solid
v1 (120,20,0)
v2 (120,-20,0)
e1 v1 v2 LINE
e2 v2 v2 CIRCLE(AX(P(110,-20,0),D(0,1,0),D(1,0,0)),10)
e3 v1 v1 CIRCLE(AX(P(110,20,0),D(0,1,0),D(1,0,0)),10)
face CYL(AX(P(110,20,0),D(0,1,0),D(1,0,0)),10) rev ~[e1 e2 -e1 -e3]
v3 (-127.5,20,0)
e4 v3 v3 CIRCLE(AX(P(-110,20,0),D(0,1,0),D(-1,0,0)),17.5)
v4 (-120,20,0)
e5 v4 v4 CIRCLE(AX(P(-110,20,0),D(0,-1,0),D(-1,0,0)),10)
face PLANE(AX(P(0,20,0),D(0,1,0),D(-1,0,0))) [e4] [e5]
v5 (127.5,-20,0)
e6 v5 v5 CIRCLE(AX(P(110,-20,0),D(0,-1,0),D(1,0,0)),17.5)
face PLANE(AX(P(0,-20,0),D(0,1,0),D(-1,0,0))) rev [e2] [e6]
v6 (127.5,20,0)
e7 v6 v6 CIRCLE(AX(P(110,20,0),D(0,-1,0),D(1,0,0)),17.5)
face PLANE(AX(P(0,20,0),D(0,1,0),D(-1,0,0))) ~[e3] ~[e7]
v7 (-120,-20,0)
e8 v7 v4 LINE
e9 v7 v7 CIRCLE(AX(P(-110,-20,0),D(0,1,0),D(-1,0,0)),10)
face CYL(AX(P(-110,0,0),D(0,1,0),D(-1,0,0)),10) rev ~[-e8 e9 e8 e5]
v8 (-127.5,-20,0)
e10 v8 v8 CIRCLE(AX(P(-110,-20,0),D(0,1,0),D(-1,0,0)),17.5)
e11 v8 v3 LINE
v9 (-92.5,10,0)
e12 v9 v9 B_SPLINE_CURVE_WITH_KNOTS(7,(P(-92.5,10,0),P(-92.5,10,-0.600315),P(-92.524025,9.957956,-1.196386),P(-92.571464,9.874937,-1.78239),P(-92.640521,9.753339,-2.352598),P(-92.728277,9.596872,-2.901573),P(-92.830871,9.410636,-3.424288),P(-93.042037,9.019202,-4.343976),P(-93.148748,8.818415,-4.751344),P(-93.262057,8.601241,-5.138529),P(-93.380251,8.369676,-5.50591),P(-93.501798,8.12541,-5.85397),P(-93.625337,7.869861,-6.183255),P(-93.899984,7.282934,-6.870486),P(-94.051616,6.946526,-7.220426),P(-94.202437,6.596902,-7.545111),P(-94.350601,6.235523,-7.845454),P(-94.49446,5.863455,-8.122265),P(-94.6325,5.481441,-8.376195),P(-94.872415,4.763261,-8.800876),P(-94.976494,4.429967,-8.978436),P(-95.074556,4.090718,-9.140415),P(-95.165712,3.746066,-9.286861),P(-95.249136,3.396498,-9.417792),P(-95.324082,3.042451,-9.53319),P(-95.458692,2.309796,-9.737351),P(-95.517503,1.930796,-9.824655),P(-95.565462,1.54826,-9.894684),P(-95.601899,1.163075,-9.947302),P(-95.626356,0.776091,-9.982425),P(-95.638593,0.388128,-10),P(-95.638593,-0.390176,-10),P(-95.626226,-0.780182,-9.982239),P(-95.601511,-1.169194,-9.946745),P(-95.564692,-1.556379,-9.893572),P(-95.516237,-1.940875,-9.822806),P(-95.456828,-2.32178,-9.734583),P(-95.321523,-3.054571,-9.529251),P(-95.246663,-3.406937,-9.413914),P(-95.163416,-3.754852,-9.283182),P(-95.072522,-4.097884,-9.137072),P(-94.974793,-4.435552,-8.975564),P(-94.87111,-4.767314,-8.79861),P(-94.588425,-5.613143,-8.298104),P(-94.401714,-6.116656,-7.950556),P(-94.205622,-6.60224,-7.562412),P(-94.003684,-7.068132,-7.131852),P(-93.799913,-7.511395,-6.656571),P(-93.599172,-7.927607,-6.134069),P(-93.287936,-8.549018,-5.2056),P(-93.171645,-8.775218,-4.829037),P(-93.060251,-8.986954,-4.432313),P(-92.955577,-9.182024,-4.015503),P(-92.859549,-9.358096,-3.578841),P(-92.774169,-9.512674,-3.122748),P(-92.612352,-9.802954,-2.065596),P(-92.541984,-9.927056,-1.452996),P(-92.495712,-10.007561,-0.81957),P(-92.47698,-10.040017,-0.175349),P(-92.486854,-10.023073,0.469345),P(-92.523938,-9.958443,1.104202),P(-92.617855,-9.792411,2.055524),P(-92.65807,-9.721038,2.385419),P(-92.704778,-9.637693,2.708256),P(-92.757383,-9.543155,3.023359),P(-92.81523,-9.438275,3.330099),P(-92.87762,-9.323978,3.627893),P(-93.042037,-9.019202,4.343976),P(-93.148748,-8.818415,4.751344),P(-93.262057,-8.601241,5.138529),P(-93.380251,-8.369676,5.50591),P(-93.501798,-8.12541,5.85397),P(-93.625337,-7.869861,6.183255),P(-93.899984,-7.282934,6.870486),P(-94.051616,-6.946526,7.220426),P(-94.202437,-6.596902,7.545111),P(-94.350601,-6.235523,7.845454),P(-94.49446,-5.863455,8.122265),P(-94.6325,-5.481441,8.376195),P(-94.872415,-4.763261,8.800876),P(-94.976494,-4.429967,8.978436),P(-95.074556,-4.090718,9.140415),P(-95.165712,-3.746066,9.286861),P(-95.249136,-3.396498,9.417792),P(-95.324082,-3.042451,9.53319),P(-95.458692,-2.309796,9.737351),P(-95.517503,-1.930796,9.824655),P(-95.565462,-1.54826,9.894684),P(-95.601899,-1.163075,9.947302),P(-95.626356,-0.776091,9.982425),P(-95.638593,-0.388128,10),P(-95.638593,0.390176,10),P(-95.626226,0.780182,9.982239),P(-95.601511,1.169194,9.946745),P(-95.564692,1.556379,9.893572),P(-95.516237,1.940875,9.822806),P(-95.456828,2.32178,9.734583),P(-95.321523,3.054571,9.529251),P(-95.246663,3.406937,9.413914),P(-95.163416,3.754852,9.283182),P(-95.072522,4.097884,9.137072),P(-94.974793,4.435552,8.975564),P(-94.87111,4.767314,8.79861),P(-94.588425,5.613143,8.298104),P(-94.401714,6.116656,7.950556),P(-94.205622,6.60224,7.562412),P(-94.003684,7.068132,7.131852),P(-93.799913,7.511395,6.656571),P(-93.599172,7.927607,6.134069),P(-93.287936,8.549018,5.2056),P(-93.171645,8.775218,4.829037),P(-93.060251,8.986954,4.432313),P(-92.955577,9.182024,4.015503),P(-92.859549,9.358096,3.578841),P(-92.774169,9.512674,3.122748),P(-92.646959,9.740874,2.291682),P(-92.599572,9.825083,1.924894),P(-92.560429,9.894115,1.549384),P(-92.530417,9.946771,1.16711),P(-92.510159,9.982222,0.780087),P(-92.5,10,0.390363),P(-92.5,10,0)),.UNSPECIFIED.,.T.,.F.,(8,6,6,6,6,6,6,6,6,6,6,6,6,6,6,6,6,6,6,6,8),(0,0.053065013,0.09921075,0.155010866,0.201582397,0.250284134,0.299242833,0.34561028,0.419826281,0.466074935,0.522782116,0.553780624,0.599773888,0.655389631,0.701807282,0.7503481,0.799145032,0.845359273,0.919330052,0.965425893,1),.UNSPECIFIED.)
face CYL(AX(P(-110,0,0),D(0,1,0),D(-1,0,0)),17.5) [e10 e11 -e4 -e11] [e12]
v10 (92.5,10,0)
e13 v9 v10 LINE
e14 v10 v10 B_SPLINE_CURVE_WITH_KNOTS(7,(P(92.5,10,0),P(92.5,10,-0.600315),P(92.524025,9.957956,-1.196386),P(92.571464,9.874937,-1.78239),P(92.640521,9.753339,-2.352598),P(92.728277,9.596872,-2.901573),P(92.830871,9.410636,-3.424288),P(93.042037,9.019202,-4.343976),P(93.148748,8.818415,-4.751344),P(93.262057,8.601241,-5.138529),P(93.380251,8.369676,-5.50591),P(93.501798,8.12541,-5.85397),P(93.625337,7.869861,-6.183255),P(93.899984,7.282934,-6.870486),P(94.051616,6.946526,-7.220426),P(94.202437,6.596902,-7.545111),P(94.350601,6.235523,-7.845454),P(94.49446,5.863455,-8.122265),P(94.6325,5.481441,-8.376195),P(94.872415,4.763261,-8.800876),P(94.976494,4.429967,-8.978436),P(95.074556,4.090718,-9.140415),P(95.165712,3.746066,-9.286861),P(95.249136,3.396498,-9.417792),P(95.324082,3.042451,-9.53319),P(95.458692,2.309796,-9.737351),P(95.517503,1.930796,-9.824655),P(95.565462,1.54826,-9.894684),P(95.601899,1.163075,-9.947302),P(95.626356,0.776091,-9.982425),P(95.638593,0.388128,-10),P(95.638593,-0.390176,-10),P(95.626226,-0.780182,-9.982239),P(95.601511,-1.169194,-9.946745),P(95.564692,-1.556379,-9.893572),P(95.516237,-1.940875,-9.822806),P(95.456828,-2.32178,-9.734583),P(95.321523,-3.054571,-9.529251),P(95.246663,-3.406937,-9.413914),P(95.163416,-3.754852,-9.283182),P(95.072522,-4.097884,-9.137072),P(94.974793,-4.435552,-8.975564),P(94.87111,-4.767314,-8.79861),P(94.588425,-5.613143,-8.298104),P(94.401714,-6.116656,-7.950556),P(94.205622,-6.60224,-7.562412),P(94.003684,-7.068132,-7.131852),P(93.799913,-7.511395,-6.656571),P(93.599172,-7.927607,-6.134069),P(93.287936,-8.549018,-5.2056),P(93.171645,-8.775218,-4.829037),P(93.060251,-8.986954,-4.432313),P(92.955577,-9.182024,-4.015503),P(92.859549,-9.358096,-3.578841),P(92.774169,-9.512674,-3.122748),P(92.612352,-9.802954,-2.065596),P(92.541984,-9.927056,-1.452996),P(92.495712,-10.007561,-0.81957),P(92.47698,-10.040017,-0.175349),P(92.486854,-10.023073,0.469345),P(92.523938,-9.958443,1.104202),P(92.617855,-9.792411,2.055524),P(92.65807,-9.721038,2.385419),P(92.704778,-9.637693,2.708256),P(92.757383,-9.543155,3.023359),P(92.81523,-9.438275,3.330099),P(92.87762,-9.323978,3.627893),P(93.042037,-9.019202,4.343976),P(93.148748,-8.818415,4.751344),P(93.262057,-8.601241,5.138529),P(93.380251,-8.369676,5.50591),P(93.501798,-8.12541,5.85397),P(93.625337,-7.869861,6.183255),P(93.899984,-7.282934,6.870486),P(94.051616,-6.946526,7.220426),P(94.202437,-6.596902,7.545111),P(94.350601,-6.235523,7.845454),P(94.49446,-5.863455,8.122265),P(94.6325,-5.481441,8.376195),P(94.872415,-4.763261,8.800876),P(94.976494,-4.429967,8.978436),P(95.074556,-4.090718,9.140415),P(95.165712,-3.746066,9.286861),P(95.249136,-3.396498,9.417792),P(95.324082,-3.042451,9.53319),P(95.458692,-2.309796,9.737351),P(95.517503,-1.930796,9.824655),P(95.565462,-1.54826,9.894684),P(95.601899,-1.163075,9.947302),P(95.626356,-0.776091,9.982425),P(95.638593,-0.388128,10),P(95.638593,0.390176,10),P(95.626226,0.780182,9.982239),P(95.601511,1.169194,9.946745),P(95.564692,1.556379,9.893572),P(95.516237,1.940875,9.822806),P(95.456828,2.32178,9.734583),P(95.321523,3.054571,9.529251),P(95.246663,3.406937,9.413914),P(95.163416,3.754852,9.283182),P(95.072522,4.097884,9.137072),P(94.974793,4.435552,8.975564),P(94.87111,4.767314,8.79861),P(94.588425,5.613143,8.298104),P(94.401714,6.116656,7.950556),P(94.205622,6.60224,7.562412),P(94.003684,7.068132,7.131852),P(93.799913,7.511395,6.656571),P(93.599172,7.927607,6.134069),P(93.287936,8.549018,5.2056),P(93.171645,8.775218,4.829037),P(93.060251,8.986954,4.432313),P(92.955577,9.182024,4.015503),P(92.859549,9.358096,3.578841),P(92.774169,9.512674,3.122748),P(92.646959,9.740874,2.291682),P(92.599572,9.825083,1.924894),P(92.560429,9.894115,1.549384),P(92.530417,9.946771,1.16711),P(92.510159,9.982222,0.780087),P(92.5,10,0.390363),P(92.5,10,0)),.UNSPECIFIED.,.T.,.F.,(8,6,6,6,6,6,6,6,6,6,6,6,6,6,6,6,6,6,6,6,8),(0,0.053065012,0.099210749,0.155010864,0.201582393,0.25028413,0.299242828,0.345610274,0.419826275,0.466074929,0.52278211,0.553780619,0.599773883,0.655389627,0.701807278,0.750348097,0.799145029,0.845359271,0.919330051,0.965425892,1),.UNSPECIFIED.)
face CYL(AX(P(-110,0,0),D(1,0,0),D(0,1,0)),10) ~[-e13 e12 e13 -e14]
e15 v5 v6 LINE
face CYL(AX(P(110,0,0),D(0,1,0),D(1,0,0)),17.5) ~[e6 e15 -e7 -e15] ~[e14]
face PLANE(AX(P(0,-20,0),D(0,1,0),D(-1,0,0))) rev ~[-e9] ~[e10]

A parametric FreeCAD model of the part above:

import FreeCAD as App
import Part
import Sketcher

doc = App.newDocument("Part")
body = doc.addObject("PartDesign::Body", "Body")

sketch1 = body.newObject("Sketcher::SketchObject", "Sketch")
sketch1.AttachmentSupport = (doc.getObject("XY_Plane"), [""])
sketch1.MapMode = "FlatFace"
sketch1.addGeometry(Part.LineSegment(App.Vector(-110, 10, 0), App.Vector(-110, 0, 0)), False)
sketch1.addGeometry(Part.LineSegment(App.Vector(-110, 0, 0), App.Vector(110, 0, 0)), False)
sketch1.addGeometry(Part.LineSegment(App.Vector(110, 0, 0), App.Vector(110, 10, 0)), False)
sketch1.addGeometry(Part.LineSegment(App.Vector(110, 10, 0), App.Vector(-110, 10, 0)), False)
sketch1.addConstraint(Sketcher.Constraint("Coincident", 0, 2, 1, 1))
sketch1.addConstraint(Sketcher.Constraint("Coincident", 1, 2, 2, 1))
sketch1.addConstraint(Sketcher.Constraint("Coincident", 2, 2, 3, 1))
sketch1.addConstraint(Sketcher.Constraint("Coincident", 3, 2, 0, 1))
sketch1.addConstraint(Sketcher.Constraint("Vertical", 0))
sketch1.addConstraint(Sketcher.Constraint("Horizontal", 1))
sketch1.addConstraint(Sketcher.Constraint("Vertical", 2))
sketch1.addConstraint(Sketcher.Constraint("Horizontal", 3))
sketch1.addConstraint(Sketcher.Constraint("Symmetric", 0, 2, 1, 2, -1, 1))
sketch1.addConstraint(Sketcher.Constraint("DistanceX", 1, 1, 1, 2, 220.0))
sketch1.addConstraint(Sketcher.Constraint("DistanceY", 0, 2, 0, 1, 10.0))
revolution = body.newObject("PartDesign::Revolution", "Revolution")
revolution.Profile = sketch1
revolution.ReferenceAxis = (sketch1, ["H_Axis"])
revolution.Angle = 360

sketch2 = body.newObject("Sketcher::SketchObject", "Sketch001")
sketch2.AttachmentSupport = (doc.getObject("XZ_Plane"), [""])
sketch2.MapMode = "FlatFace"
sketch2.addGeometry(Part.Circle(App.Vector(-110, 0, 0), App.Vector(0, 0, 1), 18), False)
sketch2.addConstraint(Sketcher.Constraint("PointOnObject", 0, 3, -1))
sketch2.addConstraint(Sketcher.Constraint("Diameter", 0, 35.0))
sketch2.addConstraint(Sketcher.Constraint("DistanceX", 0, 3, -1, 1, 110.0))
pad1 = body.newObject("PartDesign::Pad", "Pad")
pad1.Profile = sketch2
pad1.Length = 40
pad1.Midplane = True

sketch3 = body.newObject("Sketcher::SketchObject", "Sketch002")
sketch3.AttachmentSupport = (doc.getObject("XZ_Plane"), [""])
sketch3.MapMode = "FlatFace"
sketch3.addGeometry(Part.Circle(App.Vector(-110, 0, 0), App.Vector(0, 0, 1), 10), False)
sketch3.addConstraint(Sketcher.Constraint("PointOnObject", 0, 3, -1))
sketch3.addConstraint(Sketcher.Constraint("Diameter", 0, 20.0))
sketch3.addConstraint(Sketcher.Constraint("DistanceX", 0, 3, -1, 1, 110.0))
pocket1 = body.newObject("PartDesign::Pocket", "Pocket")
pocket1.Profile = sketch3
pocket1.Length = 40
pocket1.Midplane = True
doc.recompute()

mirrored = body.newObject("PartDesign::Mirrored", "Mirrored")
mirrored.Originals = [pad1]
mirrored.MirrorPlane = (doc.getObject("YZ_Plane"), [""])
body.Tip = mirrored

sketch4 = body.newObject("Sketcher::SketchObject", "Sketch003")
sketch4.AttachmentSupport = (doc.getObject("XZ_Plane"), [""])
sketch4.MapMode = "FlatFace"
sketch4.AttachmentOffset = App.Placement(App.Vector(0, 0, -20), App.Rotation())
sketch4.addGeometry(Part.Circle(App.Vector(110, 0, 0), App.Vector(0, 0, 1), 10), False)
sketch4.addConstraint(Sketcher.Constraint("PointOnObject", 0, 3, -1))
sketch4.addConstraint(Sketcher.Constraint("Diameter", 0, 20.0))
sketch4.addConstraint(Sketcher.Constraint("DistanceX", -1, 1, 0, 3, 110.0))
pocket2 = body.newObject("PartDesign::Pocket", "Pocket001")
pocket2.Profile = sketch4
pocket2.Length = 40
pocket2.Reversed = True

doc.recompute()
